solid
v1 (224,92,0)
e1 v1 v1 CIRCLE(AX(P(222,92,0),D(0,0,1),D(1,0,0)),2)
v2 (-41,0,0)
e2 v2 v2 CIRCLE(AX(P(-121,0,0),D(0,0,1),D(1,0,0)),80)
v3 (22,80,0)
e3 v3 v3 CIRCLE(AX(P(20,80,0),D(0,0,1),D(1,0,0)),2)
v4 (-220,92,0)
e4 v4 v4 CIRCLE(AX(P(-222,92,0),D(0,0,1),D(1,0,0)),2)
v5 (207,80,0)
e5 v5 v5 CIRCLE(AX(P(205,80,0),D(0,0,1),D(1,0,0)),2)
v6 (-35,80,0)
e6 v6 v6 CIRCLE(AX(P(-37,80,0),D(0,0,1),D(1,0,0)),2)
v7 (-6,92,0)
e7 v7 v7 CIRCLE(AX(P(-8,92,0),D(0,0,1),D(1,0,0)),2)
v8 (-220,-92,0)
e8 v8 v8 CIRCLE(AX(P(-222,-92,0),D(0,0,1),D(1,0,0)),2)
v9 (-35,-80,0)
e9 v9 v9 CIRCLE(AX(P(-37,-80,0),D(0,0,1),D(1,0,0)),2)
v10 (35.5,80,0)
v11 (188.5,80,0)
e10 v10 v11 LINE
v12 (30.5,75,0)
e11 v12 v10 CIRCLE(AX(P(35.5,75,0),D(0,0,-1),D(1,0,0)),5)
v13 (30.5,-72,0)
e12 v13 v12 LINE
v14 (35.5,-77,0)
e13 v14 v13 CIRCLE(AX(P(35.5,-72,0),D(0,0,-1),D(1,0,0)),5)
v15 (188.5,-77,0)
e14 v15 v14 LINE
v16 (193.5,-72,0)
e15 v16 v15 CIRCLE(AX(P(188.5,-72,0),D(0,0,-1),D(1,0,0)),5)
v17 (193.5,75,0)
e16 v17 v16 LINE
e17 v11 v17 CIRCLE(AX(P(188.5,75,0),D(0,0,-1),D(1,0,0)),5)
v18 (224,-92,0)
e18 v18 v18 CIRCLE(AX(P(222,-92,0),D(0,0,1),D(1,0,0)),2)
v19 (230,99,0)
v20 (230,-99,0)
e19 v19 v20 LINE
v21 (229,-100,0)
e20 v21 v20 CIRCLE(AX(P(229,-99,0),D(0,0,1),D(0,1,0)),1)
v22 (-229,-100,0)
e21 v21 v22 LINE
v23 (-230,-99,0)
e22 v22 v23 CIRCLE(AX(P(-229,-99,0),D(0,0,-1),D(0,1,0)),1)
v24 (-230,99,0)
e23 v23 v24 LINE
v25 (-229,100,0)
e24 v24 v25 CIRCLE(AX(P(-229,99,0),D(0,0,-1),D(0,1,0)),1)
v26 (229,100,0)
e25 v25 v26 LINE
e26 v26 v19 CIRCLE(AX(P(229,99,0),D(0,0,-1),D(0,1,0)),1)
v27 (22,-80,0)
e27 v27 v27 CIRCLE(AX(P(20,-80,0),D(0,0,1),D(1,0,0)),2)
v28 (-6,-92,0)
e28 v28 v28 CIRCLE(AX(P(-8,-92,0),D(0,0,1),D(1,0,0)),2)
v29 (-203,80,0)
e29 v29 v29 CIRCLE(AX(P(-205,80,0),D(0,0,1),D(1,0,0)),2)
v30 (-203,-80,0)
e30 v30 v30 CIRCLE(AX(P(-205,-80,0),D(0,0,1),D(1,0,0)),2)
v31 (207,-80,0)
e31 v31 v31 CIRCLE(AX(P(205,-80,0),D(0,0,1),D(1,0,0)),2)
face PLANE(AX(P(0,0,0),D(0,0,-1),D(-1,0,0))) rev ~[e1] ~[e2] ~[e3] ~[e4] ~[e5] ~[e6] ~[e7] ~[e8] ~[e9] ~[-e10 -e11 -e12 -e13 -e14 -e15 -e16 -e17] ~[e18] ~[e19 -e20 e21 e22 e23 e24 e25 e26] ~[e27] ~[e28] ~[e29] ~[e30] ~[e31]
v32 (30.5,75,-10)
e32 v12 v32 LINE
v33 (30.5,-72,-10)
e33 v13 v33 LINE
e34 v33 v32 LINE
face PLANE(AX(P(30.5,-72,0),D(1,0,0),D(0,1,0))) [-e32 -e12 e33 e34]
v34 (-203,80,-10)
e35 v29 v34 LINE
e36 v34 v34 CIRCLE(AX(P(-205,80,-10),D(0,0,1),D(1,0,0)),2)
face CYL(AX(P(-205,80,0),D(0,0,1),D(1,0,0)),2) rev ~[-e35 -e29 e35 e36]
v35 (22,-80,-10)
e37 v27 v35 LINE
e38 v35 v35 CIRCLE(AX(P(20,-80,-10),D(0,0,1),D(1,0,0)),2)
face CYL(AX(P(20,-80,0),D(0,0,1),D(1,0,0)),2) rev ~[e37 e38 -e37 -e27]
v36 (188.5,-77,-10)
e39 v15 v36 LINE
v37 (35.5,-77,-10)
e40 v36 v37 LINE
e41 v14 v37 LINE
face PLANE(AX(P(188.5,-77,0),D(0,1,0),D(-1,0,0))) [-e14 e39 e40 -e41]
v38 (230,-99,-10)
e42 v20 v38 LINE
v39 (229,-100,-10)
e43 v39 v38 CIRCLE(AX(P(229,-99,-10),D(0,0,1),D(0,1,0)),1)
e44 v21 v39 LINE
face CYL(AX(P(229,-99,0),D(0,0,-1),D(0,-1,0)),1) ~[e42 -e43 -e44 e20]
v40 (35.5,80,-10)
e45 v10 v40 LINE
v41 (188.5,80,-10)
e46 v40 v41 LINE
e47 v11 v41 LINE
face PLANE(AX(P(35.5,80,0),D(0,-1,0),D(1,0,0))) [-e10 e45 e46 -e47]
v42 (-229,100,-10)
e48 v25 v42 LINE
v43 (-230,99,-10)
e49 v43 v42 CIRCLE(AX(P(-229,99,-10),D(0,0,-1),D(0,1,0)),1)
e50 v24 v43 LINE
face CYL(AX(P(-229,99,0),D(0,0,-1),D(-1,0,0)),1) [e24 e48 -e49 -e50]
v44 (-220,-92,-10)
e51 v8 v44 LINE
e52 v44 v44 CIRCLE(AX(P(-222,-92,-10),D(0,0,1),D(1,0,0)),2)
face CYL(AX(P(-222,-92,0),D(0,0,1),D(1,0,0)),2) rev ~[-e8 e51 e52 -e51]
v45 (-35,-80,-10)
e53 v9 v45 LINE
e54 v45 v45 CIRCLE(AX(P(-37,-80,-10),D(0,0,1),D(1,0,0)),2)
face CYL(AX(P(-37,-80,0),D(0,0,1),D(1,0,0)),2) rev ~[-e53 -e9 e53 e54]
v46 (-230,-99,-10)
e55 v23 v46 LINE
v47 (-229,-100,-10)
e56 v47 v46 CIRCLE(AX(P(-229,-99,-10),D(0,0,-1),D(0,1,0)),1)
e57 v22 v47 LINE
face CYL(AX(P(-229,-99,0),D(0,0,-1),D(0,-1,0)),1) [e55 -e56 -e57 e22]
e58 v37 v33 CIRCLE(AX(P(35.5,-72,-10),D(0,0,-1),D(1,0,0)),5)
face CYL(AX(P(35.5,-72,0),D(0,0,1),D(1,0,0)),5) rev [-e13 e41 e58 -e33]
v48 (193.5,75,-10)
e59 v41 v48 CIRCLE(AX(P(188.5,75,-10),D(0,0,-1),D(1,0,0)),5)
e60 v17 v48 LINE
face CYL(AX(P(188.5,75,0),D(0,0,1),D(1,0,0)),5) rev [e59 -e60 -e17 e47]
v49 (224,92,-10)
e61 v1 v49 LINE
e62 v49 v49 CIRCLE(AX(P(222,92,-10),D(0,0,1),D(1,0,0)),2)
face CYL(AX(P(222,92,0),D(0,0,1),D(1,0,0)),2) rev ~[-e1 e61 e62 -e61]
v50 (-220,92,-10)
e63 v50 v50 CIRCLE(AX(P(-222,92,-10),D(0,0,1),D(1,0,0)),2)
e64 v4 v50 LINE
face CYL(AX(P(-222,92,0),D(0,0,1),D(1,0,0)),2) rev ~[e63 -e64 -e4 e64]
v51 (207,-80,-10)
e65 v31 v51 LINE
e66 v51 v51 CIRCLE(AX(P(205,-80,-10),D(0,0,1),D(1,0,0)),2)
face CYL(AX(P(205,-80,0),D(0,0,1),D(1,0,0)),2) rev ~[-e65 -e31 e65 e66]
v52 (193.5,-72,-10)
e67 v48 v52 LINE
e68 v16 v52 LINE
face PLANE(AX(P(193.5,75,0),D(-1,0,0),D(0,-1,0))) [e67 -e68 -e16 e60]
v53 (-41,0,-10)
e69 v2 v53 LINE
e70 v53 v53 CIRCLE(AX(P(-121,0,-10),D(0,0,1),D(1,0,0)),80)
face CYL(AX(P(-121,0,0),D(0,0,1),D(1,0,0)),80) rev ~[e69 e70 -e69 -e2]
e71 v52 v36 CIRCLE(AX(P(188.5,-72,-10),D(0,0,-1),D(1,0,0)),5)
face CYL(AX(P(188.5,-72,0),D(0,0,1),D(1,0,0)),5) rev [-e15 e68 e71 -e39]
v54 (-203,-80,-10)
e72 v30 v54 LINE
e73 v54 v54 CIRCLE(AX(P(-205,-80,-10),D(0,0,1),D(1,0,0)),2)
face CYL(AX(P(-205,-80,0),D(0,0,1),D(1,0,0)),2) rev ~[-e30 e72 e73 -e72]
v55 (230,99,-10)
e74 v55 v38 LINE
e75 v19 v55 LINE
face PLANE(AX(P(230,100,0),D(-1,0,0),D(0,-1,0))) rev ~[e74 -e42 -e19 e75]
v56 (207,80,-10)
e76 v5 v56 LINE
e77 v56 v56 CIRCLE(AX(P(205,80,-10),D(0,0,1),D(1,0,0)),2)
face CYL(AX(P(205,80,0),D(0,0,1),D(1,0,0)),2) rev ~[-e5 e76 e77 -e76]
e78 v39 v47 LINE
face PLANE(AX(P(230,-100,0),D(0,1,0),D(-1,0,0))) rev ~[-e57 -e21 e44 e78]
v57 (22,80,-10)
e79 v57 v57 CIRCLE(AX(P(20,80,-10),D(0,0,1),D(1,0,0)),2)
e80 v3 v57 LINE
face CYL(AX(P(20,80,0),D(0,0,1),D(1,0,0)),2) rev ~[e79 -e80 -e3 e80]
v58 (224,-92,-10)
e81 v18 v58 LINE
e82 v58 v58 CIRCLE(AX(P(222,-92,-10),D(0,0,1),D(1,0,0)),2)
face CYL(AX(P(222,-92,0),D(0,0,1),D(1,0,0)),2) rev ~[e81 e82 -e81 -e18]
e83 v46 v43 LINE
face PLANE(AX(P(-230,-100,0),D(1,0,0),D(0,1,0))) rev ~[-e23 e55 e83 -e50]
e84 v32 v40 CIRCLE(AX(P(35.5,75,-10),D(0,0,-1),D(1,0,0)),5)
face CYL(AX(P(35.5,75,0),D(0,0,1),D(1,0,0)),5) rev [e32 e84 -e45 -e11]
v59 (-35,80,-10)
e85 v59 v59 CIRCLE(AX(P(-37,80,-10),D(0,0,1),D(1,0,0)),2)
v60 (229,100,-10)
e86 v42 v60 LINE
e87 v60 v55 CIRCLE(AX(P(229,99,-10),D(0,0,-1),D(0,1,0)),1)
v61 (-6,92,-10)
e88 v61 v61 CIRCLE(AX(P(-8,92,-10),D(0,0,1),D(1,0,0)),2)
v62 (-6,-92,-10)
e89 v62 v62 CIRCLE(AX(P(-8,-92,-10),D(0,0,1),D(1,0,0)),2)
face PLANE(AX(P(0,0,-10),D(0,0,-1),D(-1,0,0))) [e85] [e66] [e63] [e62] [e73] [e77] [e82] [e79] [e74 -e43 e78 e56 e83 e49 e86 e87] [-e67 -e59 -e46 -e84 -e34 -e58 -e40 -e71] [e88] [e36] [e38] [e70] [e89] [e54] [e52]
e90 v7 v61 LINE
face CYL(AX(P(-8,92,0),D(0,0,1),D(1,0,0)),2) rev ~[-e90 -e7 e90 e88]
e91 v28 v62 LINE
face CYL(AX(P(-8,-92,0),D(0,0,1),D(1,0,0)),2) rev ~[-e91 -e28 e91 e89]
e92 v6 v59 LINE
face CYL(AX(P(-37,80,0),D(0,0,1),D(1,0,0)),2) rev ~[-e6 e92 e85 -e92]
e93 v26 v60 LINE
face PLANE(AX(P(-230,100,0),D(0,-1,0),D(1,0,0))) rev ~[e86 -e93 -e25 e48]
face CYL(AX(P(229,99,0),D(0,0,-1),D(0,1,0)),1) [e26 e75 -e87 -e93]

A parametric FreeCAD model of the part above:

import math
import FreeCAD as App
import Part
import Sketcher

V = App.Vector
Q = App.Units.Quantity


def edges_at(feature, points):
    """Names of the edges that pass closest to the given points."""
    edges = feature.Shape.Edges
    near = lambda p: min(range(len(edges)), key=lambda i: edges[i].distToShape(Part.Vertex(*p))[0])
    return sorted({f"Edge{near(p) + 1}" for p in points})


def add_polygon(sketch, points):
    """Adds a closed chain of lines whose ends are joined by coincident constraints."""
    first, n = sketch.GeometryCount, len(points)
    for a, b in zip(points, points[1:] + points[:1]):
        sketch.addGeometry(Part.LineSegment(App.Vector(*a, 0), App.Vector(*b, 0)), False)
    for i in range(n):
        sketch.addConstraint(Sketcher.Constraint("Coincident", first + i, 2, first + (i + 1) % n, 1))

doc = App.newDocument("Part")
body = doc.addObject("PartDesign::Body", "Body")

# Sketch on XY plane
sketch1 = doc.addObject("Sketcher::SketchObject", "Sketch")
body.addObject(sketch1)
sketch1.AttachmentSupport = (doc.XY_Plane, [""])
sketch1.MapMode = "FlatFace"
add_polygon(sketch1, [(-230, -100), (230, -100), (230, 100), (-230, 100)])  # lines 0-3
sketch1.addGeometry(Part.Circle(V(-222, -92, 0), V(0, 0, 1), 2), False)  # 4
sketch1.addGeometry(Part.Circle(V(-205, -80, 0), V(0, 0, 1), 2), False)  # 5
sketch1.addGeometry(Part.Circle(V(-8, -92, 0), V(0, 0, 1), 2), False)  # 6
sketch1.addGeometry(Part.Circle(V(-37, -80, 0), V(0, 0, 1), 2), False)  # 7
sketch1.addGeometry(Part.Circle(V(20, -80, 0), V(0, 0, 1), 2), False)  # 8
sketch1.addGeometry(Part.Circle(V(222, -92, 0), V(0, 0, 1), 2), False)  # 9
sketch1.addGeometry(Part.Circle(V(205, -80, 0), V(0, 0, 1), 2), False)  # 10
sketch1.addGeometry(Part.Circle(V(-121, 0, 0), V(0, 0, 1), 80), False)  # 11
sketch1.addGeometry(Part.Circle(V(-205, 80, 0), V(0, 0, 1), 2), False)  # 12
sketch1.addGeometry(Part.Circle(V(-222, 92, 0), V(0, 0, 1), 2), False)  # 13
sketch1.addGeometry(Part.Circle(V(-37, 80, 0), V(0, 0, 1), 2), False)  # 14
sketch1.addGeometry(Part.Circle(V(-8, 92, 0), V(0, 0, 1), 2), False)  # 15
sketch1.addGeometry(Part.LineSegment(V(193.5, 75, 0), V(193.5, -72, 0)), False)  # 16
sketch1.addGeometry(Part.ArcOfCircle(Part.Circle(V(188.5, -72, 0), V(0, 0, 1), 5), math.radians(-90), math.radians(0)), False)  # 17
sketch1.addGeometry(Part.LineSegment(V(188.5, -77, 0), V(35.5, -77, 0)), False)  # 18
sketch1.addGeometry(Part.ArcOfCircle(Part.Circle(V(35.5, -72, 0), V(0, 0, 1), 5), math.radians(180), math.radians(270)), False)  # 19
sketch1.addGeometry(Part.LineSegment(V(30.5, -72, 0), V(30.5, 75, 0)), False)  # 20
sketch1.addGeometry(Part.ArcOfCircle(Part.Circle(V(35.5, 75, 0), V(0, 0, 1), 5), math.radians(90), math.radians(180)), False)  # 21
sketch1.addGeometry(Part.LineSegment(V(35.5, 80, 0), V(188.5, 80, 0)), False)  # 22
sketch1.addGeometry(Part.ArcOfCircle(Part.Circle(V(188.5, 75, 0), V(0, 0, 1), 5), math.radians(0), math.radians(90)), False)  # 23
sketch1.addGeometry(Part.Circle(V(20, 80, 0), V(0, 0, 1), 2), False)  # 24
sketch1.addGeometry(Part.Circle(V(205, 80, 0), V(0, 0, 1), 2), False)  # 25
sketch1.addGeometry(Part.Circle(V(222, 92, 0), V(0, 0, 1), 2), False)  # 26
sketch1.addConstraint([
    Sketcher.Constraint("Tangent", 16, 2, 17, 2),
    Sketcher.Constraint("Tangent", 17, 1, 18, 1),
    Sketcher.Constraint("Tangent", 18, 2, 19, 2),
    Sketcher.Constraint("Tangent", 19, 1, 20, 1),
    Sketcher.Constraint("Tangent", 20, 2, 21, 2),
    Sketcher.Constraint("Tangent", 21, 1, 22, 1),
    Sketcher.Constraint("Tangent", 22, 2, 23, 2),
    Sketcher.Constraint("Tangent", 23, 1, 16, 1),
    Sketcher.Constraint("Horizontal", 0),
    Sketcher.Constraint("Vertical", 1),
    Sketcher.Constraint("Horizontal", 2),
    Sketcher.Constraint("Vertical", 3),
    Sketcher.Constraint("Vertical", 16),
    Sketcher.Constraint("Horizontal", 18),
    Sketcher.Constraint("Vertical", 20),
    Sketcher.Constraint("Horizontal", 22),
    Sketcher.Constraint("Equal", 4, 5),
    Sketcher.Constraint("Equal", 5, 6),
    Sketcher.Constraint("Equal", 6, 7),
    Sketcher.Constraint("Equal", 7, 8),
    Sketcher.Constraint("Equal", 8, 9),
    Sketcher.Constraint("Equal", 9, 10),
    Sketcher.Constraint("Equal", 10, 12),
    Sketcher.Constraint("Equal", 12, 13),
    Sketcher.Constraint("Equal", 13, 14),
    Sketcher.Constraint("Equal", 14, 15),
    Sketcher.Constraint("Equal", 17, 19),
    Sketcher.Constraint("Equal", 19, 21),
    Sketcher.Constraint("Equal", 21, 23),
    Sketcher.Constraint("Equal", 15, 24),
    Sketcher.Constraint("Equal", 24, 25),
    Sketcher.Constraint("Equal", 25, 26),
    Sketcher.Constraint("Symmetric", 10, 3, 12, 3, -1, 1),
    Sketcher.Constraint("Symmetric", 9, 3, 13, 3, -1, 1),
    Sketcher.Constraint("Symmetric", 5, 3, 25, 3, -1, 1),
    Sketcher.Constraint("Symmetric", 4, 3, 26, 3, -1, 1),
    Sketcher.Constraint("Symmetric", 0, 2, 2, 2, -1, 1),
    Sketcher.Constraint("Symmetric", 4, 3, 9, 3, -2),
    Sketcher.Constraint("Symmetric", 5, 3, 10, 3, -2),
    Sketcher.Constraint("Symmetric", 7, 3, 14, 3, -1),
    Sketcher.Constraint("Symmetric", 6, 3, 15, 3, -1),
    Sketcher.Constraint("Symmetric", 8, 3, 24, 3, -1),
    Sketcher.Constraint("PointOnObject", 11, 3, -1),
    Sketcher.Constraint("Horizontal", 4, 3, 6, 3),
    Sketcher.Constraint("Horizontal", 5, 3, 7, 3),
    Sketcher.Constraint("Horizontal", 7, 3, 8, 3),
    Sketcher.Constraint("Horizontal", 25, 3, 21, 1),
    Sketcher.Constraint("Diameter", 4, Q("4 mm")),
    Sketcher.Constraint("Diameter", 11, Q("160 mm")),
    Sketcher.Constraint("DistanceX", 4, 3, -1, 1, Q("222 mm")),
    Sketcher.Constraint("DistanceX", 5, 3, -1, 1, Q("205 mm")),
    Sketcher.Constraint("DistanceX", -1, 1, 0, 2, Q("230 mm")),
    Sketcher.Constraint("Radius", 17, Q("5 mm")),
    Sketcher.Constraint("DistanceX", 6, 3, 9, 3, Q("230 mm")),
    Sketcher.Constraint("DistanceX", 18, 2, 18, 1, Q("153 mm")),
    Sketcher.Constraint("DistanceY", 1, 1, 1, 2, Q("200 mm")),
    Sketcher.Constraint("DistanceY", 16, 2, 16, 1, Q("147 mm")),
    Sketcher.Constraint("DistanceY", 4, 3, -1, 1, Q("92 mm")),
    Sketcher.Constraint("DistanceY", 5, 3, -1, 1, Q("80 mm")),
    Sketcher.Constraint("DistanceX", 7, 3, -1, 1, Q("37 mm")),
    Sketcher.Constraint("DistanceX", -1, 1, 8, 3, Q("20 mm")),
    Sketcher.Constraint("DistanceX", 11, 3, -1, 1, Q("121 mm")),
    Sketcher.Constraint("DistanceX", -1, 1, 17, 3, Q("188.5 mm")),
])
pad1 = doc.addObject("PartDesign::Pad", "Pad")
body.addObject(pad1)
pad1.Profile = sketch1
pad1.Length = 10
pad1.Reversed = True
doc.recompute()

fillet = doc.addObject("PartDesign::Fillet", "Fillet")
body.addObject(fillet)
fillet.Base = (pad1, edges_at(pad1, [
    (-230, -100, -5),
    (230, -100, -5),
    (230, 100, -5),
    (-230, 100, -5),
]))
fillet.Radius = 1

doc.recompute()
